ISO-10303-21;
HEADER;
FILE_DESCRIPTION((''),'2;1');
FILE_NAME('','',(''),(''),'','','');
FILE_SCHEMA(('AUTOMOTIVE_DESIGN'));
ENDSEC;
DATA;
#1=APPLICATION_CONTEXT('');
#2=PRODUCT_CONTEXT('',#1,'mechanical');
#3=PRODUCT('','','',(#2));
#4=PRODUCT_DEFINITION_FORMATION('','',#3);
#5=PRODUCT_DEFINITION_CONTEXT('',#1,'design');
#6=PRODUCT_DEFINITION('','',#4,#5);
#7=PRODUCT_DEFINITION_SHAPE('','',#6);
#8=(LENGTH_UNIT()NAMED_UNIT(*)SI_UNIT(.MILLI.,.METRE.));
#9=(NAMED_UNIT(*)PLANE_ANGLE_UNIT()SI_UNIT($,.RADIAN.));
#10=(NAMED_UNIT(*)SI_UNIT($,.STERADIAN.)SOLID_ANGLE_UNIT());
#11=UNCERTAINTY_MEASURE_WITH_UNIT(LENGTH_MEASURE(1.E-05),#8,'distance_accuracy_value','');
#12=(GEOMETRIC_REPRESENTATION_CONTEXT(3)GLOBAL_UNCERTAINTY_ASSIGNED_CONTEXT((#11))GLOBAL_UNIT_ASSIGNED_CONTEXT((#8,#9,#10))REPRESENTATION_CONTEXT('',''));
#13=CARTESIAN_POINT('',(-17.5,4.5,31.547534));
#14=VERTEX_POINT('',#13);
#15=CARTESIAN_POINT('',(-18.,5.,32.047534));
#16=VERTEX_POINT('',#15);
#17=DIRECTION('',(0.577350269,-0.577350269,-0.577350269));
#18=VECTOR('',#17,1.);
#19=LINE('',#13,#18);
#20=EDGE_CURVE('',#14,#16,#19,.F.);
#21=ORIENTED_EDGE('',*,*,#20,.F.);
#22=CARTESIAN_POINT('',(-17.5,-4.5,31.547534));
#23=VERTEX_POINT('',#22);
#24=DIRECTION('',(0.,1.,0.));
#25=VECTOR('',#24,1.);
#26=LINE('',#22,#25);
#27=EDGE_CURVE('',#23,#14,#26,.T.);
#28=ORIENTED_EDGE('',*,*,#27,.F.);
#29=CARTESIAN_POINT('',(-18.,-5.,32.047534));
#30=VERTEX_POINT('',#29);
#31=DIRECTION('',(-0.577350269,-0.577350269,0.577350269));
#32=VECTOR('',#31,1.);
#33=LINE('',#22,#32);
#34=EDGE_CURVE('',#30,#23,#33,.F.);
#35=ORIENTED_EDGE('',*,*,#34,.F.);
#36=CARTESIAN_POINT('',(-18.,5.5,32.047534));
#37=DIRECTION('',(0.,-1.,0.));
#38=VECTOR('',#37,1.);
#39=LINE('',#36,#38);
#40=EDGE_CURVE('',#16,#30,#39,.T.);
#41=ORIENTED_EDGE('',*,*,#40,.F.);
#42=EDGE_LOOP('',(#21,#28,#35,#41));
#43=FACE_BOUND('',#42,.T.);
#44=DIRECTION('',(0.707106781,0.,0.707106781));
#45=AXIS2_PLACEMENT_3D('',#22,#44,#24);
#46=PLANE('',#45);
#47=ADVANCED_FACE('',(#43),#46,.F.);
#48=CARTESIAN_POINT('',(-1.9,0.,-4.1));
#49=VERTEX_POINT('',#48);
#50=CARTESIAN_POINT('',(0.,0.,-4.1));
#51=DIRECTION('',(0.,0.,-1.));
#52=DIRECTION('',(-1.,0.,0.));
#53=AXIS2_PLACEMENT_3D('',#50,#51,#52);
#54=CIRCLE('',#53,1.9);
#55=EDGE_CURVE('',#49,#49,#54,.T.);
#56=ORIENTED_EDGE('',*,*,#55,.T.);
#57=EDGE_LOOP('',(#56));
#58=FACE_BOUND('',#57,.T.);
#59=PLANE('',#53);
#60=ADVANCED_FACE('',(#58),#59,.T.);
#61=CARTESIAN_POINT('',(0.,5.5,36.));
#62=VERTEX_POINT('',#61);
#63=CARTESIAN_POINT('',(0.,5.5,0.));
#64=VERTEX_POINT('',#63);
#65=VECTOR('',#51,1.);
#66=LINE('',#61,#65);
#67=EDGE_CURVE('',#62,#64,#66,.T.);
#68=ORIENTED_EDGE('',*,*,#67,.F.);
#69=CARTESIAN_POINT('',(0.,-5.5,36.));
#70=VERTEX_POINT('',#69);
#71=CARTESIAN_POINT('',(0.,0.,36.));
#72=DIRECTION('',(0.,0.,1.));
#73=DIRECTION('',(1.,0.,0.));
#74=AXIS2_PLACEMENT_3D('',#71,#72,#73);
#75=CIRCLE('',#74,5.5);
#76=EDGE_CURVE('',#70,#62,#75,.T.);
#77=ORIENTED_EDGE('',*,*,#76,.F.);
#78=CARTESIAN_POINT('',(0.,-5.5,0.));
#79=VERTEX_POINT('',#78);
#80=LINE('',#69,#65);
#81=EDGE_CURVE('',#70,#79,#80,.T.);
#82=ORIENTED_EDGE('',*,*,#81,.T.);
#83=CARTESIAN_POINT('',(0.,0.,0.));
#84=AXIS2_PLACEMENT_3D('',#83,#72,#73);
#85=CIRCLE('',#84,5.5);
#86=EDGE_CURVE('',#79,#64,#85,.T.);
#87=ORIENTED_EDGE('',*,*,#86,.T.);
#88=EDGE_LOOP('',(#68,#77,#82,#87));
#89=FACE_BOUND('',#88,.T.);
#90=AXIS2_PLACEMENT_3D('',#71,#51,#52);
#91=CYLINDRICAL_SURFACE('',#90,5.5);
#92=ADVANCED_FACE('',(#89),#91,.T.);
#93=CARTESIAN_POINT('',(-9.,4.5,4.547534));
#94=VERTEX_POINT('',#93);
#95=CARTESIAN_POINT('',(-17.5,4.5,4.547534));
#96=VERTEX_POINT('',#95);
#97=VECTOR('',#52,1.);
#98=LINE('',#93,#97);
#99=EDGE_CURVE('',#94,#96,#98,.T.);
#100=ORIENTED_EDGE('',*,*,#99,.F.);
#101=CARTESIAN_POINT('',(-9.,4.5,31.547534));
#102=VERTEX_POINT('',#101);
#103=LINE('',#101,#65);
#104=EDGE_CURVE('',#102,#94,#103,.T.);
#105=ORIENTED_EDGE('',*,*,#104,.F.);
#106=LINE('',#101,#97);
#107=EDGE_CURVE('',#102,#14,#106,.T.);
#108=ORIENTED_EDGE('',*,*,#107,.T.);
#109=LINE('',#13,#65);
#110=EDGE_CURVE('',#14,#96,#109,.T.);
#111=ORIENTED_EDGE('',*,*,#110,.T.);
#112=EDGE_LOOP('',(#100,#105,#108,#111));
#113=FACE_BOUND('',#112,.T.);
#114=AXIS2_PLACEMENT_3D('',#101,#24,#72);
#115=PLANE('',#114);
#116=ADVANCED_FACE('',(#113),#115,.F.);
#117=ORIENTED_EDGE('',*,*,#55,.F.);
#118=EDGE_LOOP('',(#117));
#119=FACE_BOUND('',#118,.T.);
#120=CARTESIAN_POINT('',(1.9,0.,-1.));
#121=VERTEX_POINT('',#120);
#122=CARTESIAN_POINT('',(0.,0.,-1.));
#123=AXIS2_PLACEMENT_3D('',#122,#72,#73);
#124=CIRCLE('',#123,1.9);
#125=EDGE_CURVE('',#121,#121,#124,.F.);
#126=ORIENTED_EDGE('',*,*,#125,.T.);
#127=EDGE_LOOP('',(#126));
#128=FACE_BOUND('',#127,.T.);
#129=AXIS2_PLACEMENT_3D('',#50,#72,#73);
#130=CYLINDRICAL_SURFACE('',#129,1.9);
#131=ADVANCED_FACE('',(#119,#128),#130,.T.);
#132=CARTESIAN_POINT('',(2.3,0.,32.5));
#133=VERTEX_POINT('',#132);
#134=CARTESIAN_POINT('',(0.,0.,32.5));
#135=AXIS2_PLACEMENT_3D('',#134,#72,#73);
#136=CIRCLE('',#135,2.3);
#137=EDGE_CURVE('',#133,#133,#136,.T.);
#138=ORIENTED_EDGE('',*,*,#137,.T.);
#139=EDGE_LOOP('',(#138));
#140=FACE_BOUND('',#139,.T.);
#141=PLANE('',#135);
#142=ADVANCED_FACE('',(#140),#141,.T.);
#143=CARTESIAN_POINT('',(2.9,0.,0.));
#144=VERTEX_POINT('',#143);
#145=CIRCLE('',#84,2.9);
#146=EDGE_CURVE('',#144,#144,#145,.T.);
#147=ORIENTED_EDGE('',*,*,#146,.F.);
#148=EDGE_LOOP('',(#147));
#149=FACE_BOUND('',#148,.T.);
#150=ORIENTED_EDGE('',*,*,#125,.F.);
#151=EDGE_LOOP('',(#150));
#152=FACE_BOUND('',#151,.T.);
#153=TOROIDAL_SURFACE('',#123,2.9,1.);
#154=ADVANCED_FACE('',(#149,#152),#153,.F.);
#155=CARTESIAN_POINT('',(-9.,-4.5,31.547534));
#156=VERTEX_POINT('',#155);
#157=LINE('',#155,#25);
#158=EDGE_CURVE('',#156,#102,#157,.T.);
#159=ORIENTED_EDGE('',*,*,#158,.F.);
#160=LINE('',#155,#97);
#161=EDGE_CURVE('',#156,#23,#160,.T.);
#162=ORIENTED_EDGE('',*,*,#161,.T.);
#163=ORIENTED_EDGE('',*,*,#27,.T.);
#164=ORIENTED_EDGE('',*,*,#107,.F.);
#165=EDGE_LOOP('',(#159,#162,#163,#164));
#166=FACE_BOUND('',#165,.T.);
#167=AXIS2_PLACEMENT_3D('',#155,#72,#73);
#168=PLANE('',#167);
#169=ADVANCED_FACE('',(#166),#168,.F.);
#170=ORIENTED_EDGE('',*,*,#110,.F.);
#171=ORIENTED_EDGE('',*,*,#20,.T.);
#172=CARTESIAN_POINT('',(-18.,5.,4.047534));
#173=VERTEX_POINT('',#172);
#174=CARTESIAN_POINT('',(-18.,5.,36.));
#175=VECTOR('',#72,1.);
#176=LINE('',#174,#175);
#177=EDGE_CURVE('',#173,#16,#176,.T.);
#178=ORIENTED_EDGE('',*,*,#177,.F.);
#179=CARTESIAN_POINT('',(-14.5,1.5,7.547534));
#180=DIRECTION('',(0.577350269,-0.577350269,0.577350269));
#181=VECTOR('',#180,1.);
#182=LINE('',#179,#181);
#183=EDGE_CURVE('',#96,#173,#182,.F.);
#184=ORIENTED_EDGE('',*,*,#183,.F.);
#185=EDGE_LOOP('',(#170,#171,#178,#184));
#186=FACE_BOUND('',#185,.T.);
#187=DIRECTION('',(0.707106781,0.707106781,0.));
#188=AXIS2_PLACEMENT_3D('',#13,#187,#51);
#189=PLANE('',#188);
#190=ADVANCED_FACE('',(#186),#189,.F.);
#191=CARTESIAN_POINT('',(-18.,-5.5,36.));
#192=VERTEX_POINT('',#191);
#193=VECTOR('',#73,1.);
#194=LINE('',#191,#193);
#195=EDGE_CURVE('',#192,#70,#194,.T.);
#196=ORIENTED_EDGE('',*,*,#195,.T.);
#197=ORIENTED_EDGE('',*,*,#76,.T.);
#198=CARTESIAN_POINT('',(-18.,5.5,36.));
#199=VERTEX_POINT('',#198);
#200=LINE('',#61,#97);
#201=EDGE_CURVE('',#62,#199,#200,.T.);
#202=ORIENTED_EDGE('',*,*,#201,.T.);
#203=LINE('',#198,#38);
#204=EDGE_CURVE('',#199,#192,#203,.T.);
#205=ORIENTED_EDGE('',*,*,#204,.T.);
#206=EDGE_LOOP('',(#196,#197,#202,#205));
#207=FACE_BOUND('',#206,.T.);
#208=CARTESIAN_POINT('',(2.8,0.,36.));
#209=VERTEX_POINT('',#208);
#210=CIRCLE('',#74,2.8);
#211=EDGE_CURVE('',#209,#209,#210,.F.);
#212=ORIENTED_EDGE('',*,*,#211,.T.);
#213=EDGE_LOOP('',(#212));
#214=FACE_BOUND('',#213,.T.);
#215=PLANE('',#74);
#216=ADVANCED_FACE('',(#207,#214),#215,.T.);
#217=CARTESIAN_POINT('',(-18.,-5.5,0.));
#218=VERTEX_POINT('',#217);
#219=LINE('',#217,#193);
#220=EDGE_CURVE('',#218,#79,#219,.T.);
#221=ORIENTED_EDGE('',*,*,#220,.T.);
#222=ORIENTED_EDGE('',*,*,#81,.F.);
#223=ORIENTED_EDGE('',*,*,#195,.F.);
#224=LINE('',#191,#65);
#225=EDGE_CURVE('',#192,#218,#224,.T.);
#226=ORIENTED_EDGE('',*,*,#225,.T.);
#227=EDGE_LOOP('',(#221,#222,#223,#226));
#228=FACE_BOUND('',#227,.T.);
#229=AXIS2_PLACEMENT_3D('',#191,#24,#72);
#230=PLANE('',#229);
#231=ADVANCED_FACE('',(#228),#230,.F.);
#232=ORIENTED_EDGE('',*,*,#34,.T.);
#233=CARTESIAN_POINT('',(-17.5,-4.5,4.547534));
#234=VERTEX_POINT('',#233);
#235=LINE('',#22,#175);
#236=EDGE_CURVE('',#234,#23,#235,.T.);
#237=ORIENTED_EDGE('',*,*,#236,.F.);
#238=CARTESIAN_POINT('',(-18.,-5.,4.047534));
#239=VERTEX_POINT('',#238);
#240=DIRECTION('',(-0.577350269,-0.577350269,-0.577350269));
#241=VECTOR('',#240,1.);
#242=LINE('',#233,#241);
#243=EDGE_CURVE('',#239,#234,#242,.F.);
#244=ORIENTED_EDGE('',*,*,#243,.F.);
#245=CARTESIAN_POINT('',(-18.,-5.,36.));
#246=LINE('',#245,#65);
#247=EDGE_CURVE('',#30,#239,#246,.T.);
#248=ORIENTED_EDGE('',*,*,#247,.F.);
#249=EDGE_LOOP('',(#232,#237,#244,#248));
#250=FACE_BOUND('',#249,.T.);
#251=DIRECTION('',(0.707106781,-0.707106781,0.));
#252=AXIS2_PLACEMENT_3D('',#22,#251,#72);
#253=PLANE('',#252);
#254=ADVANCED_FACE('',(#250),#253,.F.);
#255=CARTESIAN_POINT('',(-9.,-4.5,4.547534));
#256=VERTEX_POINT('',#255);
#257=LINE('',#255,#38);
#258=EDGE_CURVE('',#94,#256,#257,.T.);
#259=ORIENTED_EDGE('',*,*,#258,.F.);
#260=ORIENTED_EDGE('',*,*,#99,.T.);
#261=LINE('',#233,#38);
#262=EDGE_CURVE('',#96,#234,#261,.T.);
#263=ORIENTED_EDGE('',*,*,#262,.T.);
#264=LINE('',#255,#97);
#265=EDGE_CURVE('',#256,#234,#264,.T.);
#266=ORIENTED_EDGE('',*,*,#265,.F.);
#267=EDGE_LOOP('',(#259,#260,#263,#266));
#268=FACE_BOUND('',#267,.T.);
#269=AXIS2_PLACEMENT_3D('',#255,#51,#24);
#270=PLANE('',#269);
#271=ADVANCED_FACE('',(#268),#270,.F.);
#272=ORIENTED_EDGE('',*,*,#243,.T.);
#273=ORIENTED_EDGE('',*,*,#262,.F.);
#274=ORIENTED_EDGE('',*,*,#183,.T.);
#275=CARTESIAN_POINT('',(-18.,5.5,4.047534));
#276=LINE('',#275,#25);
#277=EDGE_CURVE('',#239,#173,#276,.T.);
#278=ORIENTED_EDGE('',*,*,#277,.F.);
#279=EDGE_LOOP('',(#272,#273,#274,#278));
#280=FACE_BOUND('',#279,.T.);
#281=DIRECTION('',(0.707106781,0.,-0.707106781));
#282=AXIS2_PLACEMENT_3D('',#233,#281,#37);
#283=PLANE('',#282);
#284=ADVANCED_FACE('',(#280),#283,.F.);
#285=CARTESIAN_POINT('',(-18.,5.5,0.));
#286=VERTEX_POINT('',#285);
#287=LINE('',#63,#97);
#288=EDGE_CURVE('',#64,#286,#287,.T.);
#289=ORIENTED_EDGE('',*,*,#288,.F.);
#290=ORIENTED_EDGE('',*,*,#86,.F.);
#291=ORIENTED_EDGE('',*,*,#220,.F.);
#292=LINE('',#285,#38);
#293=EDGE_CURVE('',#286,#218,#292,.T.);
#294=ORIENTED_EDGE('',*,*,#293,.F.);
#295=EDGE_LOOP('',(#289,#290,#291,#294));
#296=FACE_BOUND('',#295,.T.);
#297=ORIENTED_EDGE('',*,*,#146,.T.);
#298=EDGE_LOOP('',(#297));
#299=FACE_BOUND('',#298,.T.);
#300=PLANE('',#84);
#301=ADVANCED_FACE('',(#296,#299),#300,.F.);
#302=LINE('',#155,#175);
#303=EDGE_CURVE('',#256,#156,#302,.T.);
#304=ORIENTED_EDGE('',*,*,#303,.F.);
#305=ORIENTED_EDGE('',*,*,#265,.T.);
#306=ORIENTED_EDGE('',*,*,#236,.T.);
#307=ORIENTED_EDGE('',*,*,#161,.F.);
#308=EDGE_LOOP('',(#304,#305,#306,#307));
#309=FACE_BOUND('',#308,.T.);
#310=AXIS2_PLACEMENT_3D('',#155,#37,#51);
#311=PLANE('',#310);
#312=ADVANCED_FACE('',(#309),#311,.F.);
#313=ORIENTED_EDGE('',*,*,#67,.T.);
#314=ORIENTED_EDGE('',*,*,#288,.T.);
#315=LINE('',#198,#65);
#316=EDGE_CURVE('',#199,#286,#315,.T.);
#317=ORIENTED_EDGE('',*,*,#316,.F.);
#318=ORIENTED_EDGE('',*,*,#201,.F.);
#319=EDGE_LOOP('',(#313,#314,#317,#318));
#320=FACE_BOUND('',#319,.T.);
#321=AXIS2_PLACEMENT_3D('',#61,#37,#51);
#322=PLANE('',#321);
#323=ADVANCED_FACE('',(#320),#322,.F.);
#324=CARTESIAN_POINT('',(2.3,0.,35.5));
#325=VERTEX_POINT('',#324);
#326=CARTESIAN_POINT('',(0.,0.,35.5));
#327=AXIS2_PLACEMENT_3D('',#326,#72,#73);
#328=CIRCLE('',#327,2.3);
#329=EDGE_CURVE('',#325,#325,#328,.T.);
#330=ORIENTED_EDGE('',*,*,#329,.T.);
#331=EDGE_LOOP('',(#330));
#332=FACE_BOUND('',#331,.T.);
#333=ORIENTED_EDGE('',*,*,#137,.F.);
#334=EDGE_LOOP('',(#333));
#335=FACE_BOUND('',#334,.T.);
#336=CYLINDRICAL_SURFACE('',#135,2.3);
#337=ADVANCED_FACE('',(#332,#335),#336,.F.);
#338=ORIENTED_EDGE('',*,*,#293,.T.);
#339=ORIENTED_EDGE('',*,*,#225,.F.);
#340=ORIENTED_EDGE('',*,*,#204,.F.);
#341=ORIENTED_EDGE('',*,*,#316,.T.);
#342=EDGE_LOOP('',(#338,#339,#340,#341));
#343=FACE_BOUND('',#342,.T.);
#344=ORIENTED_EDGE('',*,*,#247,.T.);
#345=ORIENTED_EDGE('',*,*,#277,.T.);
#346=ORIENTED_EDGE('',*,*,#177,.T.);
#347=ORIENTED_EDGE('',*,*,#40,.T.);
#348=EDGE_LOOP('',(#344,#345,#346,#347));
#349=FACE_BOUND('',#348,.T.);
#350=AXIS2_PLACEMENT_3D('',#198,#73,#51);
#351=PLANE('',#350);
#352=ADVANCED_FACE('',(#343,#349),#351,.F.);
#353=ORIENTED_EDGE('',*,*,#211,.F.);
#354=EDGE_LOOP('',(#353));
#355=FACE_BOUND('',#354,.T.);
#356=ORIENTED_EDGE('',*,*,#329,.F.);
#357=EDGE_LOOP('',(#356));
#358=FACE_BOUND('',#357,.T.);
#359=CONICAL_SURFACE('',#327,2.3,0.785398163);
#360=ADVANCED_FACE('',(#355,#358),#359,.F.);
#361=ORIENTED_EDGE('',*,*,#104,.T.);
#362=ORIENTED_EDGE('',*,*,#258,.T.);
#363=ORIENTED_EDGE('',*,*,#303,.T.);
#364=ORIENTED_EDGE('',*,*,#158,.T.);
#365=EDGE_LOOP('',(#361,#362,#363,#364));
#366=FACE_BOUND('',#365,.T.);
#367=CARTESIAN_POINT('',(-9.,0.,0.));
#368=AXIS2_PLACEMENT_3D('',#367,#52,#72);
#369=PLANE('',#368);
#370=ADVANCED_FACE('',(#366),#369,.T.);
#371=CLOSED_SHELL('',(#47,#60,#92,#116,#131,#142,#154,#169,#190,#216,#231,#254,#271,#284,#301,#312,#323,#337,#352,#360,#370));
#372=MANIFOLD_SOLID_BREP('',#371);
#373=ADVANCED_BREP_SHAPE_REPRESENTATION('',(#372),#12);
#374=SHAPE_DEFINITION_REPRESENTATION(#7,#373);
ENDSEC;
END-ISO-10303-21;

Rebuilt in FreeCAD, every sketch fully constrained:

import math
import FreeCAD as App
import Part
import Sketcher
Q = App.Units.Quantity


def edges_at(feature, points):
    """Names of the edges that pass closest to the given points."""
    edges = feature.Shape.Edges
    near = lambda p: min(range(len(edges)), key=lambda i: edges[i].distToShape(Part.Vertex(*p))[0])
    return sorted({f"Edge{near(p) + 1}" for p in points})

doc = App.newDocument("Part")
body = doc.addObject("PartDesign::Body", "Body")

# Sketch on XY plane
sketch1 = body.newObject("Sketcher::SketchObject", "Sketch")
sketch1.AttachmentSupport = (doc.getObject("XY_Plane"), [""])
sketch1.MapMode = "FlatFace"
sketch1.addGeometry([
    Part.LineSegment(App.Vector(0, 6, 0), App.Vector(-18, 6, 0)),
    Part.LineSegment(App.Vector(-18, 6, 0), App.Vector(-18, -6, 0)),
    Part.LineSegment(App.Vector(-18, -6, 0), App.Vector(0, -6, 0)),
    Part.ArcOfCircle(Part.Circle(App.Vector(0, 0, 0), App.Vector(0, 0, 1), 6), math.radians(-90), math.radians(90)),
], False)
sketch1.addConstraint([
    Sketcher.Constraint("Coincident", 0, 2, 1, 1),
    Sketcher.Constraint("Coincident", 1, 2, 2, 1),
    Sketcher.Constraint("Tangent", 2, 2, 3, 1),
    Sketcher.Constraint("Tangent", 3, 2, 0, 1),
    Sketcher.Constraint("Horizontal", 0),
    Sketcher.Constraint("Vertical", 1),
    Sketcher.Constraint("Horizontal", 2),
    Sketcher.Constraint("Coincident", 3, 3, -1, 1),
    Sketcher.Constraint("Radius", 3, Q("5.5 mm")),
    Sketcher.Constraint("DistanceX", 0, 2, 0, 1, Q("18 mm")),
])
pad1 = body.newObject("PartDesign::Pad", "Pad")
pad1.Profile = sketch1
pad1.Length = 36

# Sketch on YZ plane
sketch2 = body.newObject("Sketcher::SketchObject", "Sketch001")
sketch2.AttachmentSupport = (doc.getObject("YZ_Plane"), [""])
sketch2.MapMode = "FlatFace"
sketch2.AttachmentOffset = App.Placement(App.Vector(0, 0, -18), App.Rotation())
sketch2.addGeometry([
    Part.LineSegment(App.Vector(4, 5, 0), App.Vector(-4, 5, 0)),
    Part.LineSegment(App.Vector(-4, 5, 0), App.Vector(-4, 32, 0)),
    Part.LineSegment(App.Vector(-4, 32, 0), App.Vector(4, 32, 0)),
    Part.LineSegment(App.Vector(4, 32, 0), App.Vector(4, 5, 0)),
], False)
sketch2.addConstraint([
    Sketcher.Constraint("Coincident", 0, 2, 1, 1),
    Sketcher.Constraint("Coincident", 1, 2, 2, 1),
    Sketcher.Constraint("Coincident", 2, 2, 3, 1),
    Sketcher.Constraint("Coincident", 3, 2, 0, 1),
    Sketcher.Constraint("Horizontal", 0),
    Sketcher.Constraint("Vertical", 1),
    Sketcher.Constraint("Horizontal", 2),
    Sketcher.Constraint("Vertical", 3),
    Sketcher.Constraint("DistanceX", 0, 2, 0, 1, Q("9 mm")),
    Sketcher.Constraint("DistanceY", 1, 1, 1, 2, Q("27 mm")),
    Sketcher.Constraint("DistanceX", 0, 2, -1, 1, Q("4.5 mm")),
    Sketcher.Constraint("DistanceY", -1, 1, 0, 2, Q("4.547534 mm")),
])
pocket1 = body.newObject("PartDesign::Pocket", "Pocket")
pocket1.Profile = sketch2
pocket1.Length = 9
pocket1.Reversed = True

# Sketch on XY plane
sketch3 = body.newObject("Sketcher::SketchObject", "Sketch002")
sketch3.AttachmentSupport = (doc.getObject("XY_Plane"), [""])
sketch3.MapMode = "FlatFace"
sketch3.AttachmentOffset = App.Placement(App.Vector(0, 0, 36), App.Rotation())
sketch3.addGeometry(Part.Circle(App.Vector(0, 0, 0), App.Vector(0, 0, 1), 2.3), False)
sketch3.addConstraint([
    Sketcher.Constraint("Coincident", 0, 3, -1, 1),
    Sketcher.Constraint("Diameter", 0, Q("4.6 mm")),
])
pocket2 = body.newObject("PartDesign::Pocket", "Pocket001")
pocket2.Profile = sketch3
pocket2.Length = 3.5

# Sketch on XY plane
sketch4 = body.newObject("Sketcher::SketchObject", "Sketch003")
sketch4.AttachmentSupport = (doc.getObject("XY_Plane"), [""])
sketch4.MapMode = "FlatFace"
sketch4.addGeometry(Part.Circle(App.Vector(0, 0, 0), App.Vector(0, 0, 1), 1.9), False)
sketch4.addConstraint([
    Sketcher.Constraint("Coincident", 0, 3, -1, 1),
    Sketcher.Constraint("Diameter", 0, Q("3.8 mm")),
])
pad2 = body.newObject("PartDesign::Pad", "Pad001")
pad2.Profile = sketch4
pad2.Length = 4.1
pad2.Reversed = True
doc.recompute()

fillet = body.newObject("PartDesign::Fillet", "Fillet")
fillet.Base = (pad2, edges_at(pad2, [(-1.9, 0, 0)]))
fillet.Radius = 1
doc.recompute()

chamfer = body.newObject("PartDesign::Chamfer", "Chamfer")
chamfer.Base = (fillet, edges_at(fillet, [(-2.3, 0, 36)]))
chamfer.Size = 0.5
doc.recompute()

chamfer2 = body.newObject("PartDesign::Chamfer", "Chamfer001")
chamfer2.Base = (chamfer, edges_at(chamfer, [
    (-18, 0, 4.548),
    (-18, -4.5, 18.048),
    (-18, 0, 31.548),
    (-18, 4.5, 18.048),
]))
chamfer2.Size = 0.5

doc.recompute()
